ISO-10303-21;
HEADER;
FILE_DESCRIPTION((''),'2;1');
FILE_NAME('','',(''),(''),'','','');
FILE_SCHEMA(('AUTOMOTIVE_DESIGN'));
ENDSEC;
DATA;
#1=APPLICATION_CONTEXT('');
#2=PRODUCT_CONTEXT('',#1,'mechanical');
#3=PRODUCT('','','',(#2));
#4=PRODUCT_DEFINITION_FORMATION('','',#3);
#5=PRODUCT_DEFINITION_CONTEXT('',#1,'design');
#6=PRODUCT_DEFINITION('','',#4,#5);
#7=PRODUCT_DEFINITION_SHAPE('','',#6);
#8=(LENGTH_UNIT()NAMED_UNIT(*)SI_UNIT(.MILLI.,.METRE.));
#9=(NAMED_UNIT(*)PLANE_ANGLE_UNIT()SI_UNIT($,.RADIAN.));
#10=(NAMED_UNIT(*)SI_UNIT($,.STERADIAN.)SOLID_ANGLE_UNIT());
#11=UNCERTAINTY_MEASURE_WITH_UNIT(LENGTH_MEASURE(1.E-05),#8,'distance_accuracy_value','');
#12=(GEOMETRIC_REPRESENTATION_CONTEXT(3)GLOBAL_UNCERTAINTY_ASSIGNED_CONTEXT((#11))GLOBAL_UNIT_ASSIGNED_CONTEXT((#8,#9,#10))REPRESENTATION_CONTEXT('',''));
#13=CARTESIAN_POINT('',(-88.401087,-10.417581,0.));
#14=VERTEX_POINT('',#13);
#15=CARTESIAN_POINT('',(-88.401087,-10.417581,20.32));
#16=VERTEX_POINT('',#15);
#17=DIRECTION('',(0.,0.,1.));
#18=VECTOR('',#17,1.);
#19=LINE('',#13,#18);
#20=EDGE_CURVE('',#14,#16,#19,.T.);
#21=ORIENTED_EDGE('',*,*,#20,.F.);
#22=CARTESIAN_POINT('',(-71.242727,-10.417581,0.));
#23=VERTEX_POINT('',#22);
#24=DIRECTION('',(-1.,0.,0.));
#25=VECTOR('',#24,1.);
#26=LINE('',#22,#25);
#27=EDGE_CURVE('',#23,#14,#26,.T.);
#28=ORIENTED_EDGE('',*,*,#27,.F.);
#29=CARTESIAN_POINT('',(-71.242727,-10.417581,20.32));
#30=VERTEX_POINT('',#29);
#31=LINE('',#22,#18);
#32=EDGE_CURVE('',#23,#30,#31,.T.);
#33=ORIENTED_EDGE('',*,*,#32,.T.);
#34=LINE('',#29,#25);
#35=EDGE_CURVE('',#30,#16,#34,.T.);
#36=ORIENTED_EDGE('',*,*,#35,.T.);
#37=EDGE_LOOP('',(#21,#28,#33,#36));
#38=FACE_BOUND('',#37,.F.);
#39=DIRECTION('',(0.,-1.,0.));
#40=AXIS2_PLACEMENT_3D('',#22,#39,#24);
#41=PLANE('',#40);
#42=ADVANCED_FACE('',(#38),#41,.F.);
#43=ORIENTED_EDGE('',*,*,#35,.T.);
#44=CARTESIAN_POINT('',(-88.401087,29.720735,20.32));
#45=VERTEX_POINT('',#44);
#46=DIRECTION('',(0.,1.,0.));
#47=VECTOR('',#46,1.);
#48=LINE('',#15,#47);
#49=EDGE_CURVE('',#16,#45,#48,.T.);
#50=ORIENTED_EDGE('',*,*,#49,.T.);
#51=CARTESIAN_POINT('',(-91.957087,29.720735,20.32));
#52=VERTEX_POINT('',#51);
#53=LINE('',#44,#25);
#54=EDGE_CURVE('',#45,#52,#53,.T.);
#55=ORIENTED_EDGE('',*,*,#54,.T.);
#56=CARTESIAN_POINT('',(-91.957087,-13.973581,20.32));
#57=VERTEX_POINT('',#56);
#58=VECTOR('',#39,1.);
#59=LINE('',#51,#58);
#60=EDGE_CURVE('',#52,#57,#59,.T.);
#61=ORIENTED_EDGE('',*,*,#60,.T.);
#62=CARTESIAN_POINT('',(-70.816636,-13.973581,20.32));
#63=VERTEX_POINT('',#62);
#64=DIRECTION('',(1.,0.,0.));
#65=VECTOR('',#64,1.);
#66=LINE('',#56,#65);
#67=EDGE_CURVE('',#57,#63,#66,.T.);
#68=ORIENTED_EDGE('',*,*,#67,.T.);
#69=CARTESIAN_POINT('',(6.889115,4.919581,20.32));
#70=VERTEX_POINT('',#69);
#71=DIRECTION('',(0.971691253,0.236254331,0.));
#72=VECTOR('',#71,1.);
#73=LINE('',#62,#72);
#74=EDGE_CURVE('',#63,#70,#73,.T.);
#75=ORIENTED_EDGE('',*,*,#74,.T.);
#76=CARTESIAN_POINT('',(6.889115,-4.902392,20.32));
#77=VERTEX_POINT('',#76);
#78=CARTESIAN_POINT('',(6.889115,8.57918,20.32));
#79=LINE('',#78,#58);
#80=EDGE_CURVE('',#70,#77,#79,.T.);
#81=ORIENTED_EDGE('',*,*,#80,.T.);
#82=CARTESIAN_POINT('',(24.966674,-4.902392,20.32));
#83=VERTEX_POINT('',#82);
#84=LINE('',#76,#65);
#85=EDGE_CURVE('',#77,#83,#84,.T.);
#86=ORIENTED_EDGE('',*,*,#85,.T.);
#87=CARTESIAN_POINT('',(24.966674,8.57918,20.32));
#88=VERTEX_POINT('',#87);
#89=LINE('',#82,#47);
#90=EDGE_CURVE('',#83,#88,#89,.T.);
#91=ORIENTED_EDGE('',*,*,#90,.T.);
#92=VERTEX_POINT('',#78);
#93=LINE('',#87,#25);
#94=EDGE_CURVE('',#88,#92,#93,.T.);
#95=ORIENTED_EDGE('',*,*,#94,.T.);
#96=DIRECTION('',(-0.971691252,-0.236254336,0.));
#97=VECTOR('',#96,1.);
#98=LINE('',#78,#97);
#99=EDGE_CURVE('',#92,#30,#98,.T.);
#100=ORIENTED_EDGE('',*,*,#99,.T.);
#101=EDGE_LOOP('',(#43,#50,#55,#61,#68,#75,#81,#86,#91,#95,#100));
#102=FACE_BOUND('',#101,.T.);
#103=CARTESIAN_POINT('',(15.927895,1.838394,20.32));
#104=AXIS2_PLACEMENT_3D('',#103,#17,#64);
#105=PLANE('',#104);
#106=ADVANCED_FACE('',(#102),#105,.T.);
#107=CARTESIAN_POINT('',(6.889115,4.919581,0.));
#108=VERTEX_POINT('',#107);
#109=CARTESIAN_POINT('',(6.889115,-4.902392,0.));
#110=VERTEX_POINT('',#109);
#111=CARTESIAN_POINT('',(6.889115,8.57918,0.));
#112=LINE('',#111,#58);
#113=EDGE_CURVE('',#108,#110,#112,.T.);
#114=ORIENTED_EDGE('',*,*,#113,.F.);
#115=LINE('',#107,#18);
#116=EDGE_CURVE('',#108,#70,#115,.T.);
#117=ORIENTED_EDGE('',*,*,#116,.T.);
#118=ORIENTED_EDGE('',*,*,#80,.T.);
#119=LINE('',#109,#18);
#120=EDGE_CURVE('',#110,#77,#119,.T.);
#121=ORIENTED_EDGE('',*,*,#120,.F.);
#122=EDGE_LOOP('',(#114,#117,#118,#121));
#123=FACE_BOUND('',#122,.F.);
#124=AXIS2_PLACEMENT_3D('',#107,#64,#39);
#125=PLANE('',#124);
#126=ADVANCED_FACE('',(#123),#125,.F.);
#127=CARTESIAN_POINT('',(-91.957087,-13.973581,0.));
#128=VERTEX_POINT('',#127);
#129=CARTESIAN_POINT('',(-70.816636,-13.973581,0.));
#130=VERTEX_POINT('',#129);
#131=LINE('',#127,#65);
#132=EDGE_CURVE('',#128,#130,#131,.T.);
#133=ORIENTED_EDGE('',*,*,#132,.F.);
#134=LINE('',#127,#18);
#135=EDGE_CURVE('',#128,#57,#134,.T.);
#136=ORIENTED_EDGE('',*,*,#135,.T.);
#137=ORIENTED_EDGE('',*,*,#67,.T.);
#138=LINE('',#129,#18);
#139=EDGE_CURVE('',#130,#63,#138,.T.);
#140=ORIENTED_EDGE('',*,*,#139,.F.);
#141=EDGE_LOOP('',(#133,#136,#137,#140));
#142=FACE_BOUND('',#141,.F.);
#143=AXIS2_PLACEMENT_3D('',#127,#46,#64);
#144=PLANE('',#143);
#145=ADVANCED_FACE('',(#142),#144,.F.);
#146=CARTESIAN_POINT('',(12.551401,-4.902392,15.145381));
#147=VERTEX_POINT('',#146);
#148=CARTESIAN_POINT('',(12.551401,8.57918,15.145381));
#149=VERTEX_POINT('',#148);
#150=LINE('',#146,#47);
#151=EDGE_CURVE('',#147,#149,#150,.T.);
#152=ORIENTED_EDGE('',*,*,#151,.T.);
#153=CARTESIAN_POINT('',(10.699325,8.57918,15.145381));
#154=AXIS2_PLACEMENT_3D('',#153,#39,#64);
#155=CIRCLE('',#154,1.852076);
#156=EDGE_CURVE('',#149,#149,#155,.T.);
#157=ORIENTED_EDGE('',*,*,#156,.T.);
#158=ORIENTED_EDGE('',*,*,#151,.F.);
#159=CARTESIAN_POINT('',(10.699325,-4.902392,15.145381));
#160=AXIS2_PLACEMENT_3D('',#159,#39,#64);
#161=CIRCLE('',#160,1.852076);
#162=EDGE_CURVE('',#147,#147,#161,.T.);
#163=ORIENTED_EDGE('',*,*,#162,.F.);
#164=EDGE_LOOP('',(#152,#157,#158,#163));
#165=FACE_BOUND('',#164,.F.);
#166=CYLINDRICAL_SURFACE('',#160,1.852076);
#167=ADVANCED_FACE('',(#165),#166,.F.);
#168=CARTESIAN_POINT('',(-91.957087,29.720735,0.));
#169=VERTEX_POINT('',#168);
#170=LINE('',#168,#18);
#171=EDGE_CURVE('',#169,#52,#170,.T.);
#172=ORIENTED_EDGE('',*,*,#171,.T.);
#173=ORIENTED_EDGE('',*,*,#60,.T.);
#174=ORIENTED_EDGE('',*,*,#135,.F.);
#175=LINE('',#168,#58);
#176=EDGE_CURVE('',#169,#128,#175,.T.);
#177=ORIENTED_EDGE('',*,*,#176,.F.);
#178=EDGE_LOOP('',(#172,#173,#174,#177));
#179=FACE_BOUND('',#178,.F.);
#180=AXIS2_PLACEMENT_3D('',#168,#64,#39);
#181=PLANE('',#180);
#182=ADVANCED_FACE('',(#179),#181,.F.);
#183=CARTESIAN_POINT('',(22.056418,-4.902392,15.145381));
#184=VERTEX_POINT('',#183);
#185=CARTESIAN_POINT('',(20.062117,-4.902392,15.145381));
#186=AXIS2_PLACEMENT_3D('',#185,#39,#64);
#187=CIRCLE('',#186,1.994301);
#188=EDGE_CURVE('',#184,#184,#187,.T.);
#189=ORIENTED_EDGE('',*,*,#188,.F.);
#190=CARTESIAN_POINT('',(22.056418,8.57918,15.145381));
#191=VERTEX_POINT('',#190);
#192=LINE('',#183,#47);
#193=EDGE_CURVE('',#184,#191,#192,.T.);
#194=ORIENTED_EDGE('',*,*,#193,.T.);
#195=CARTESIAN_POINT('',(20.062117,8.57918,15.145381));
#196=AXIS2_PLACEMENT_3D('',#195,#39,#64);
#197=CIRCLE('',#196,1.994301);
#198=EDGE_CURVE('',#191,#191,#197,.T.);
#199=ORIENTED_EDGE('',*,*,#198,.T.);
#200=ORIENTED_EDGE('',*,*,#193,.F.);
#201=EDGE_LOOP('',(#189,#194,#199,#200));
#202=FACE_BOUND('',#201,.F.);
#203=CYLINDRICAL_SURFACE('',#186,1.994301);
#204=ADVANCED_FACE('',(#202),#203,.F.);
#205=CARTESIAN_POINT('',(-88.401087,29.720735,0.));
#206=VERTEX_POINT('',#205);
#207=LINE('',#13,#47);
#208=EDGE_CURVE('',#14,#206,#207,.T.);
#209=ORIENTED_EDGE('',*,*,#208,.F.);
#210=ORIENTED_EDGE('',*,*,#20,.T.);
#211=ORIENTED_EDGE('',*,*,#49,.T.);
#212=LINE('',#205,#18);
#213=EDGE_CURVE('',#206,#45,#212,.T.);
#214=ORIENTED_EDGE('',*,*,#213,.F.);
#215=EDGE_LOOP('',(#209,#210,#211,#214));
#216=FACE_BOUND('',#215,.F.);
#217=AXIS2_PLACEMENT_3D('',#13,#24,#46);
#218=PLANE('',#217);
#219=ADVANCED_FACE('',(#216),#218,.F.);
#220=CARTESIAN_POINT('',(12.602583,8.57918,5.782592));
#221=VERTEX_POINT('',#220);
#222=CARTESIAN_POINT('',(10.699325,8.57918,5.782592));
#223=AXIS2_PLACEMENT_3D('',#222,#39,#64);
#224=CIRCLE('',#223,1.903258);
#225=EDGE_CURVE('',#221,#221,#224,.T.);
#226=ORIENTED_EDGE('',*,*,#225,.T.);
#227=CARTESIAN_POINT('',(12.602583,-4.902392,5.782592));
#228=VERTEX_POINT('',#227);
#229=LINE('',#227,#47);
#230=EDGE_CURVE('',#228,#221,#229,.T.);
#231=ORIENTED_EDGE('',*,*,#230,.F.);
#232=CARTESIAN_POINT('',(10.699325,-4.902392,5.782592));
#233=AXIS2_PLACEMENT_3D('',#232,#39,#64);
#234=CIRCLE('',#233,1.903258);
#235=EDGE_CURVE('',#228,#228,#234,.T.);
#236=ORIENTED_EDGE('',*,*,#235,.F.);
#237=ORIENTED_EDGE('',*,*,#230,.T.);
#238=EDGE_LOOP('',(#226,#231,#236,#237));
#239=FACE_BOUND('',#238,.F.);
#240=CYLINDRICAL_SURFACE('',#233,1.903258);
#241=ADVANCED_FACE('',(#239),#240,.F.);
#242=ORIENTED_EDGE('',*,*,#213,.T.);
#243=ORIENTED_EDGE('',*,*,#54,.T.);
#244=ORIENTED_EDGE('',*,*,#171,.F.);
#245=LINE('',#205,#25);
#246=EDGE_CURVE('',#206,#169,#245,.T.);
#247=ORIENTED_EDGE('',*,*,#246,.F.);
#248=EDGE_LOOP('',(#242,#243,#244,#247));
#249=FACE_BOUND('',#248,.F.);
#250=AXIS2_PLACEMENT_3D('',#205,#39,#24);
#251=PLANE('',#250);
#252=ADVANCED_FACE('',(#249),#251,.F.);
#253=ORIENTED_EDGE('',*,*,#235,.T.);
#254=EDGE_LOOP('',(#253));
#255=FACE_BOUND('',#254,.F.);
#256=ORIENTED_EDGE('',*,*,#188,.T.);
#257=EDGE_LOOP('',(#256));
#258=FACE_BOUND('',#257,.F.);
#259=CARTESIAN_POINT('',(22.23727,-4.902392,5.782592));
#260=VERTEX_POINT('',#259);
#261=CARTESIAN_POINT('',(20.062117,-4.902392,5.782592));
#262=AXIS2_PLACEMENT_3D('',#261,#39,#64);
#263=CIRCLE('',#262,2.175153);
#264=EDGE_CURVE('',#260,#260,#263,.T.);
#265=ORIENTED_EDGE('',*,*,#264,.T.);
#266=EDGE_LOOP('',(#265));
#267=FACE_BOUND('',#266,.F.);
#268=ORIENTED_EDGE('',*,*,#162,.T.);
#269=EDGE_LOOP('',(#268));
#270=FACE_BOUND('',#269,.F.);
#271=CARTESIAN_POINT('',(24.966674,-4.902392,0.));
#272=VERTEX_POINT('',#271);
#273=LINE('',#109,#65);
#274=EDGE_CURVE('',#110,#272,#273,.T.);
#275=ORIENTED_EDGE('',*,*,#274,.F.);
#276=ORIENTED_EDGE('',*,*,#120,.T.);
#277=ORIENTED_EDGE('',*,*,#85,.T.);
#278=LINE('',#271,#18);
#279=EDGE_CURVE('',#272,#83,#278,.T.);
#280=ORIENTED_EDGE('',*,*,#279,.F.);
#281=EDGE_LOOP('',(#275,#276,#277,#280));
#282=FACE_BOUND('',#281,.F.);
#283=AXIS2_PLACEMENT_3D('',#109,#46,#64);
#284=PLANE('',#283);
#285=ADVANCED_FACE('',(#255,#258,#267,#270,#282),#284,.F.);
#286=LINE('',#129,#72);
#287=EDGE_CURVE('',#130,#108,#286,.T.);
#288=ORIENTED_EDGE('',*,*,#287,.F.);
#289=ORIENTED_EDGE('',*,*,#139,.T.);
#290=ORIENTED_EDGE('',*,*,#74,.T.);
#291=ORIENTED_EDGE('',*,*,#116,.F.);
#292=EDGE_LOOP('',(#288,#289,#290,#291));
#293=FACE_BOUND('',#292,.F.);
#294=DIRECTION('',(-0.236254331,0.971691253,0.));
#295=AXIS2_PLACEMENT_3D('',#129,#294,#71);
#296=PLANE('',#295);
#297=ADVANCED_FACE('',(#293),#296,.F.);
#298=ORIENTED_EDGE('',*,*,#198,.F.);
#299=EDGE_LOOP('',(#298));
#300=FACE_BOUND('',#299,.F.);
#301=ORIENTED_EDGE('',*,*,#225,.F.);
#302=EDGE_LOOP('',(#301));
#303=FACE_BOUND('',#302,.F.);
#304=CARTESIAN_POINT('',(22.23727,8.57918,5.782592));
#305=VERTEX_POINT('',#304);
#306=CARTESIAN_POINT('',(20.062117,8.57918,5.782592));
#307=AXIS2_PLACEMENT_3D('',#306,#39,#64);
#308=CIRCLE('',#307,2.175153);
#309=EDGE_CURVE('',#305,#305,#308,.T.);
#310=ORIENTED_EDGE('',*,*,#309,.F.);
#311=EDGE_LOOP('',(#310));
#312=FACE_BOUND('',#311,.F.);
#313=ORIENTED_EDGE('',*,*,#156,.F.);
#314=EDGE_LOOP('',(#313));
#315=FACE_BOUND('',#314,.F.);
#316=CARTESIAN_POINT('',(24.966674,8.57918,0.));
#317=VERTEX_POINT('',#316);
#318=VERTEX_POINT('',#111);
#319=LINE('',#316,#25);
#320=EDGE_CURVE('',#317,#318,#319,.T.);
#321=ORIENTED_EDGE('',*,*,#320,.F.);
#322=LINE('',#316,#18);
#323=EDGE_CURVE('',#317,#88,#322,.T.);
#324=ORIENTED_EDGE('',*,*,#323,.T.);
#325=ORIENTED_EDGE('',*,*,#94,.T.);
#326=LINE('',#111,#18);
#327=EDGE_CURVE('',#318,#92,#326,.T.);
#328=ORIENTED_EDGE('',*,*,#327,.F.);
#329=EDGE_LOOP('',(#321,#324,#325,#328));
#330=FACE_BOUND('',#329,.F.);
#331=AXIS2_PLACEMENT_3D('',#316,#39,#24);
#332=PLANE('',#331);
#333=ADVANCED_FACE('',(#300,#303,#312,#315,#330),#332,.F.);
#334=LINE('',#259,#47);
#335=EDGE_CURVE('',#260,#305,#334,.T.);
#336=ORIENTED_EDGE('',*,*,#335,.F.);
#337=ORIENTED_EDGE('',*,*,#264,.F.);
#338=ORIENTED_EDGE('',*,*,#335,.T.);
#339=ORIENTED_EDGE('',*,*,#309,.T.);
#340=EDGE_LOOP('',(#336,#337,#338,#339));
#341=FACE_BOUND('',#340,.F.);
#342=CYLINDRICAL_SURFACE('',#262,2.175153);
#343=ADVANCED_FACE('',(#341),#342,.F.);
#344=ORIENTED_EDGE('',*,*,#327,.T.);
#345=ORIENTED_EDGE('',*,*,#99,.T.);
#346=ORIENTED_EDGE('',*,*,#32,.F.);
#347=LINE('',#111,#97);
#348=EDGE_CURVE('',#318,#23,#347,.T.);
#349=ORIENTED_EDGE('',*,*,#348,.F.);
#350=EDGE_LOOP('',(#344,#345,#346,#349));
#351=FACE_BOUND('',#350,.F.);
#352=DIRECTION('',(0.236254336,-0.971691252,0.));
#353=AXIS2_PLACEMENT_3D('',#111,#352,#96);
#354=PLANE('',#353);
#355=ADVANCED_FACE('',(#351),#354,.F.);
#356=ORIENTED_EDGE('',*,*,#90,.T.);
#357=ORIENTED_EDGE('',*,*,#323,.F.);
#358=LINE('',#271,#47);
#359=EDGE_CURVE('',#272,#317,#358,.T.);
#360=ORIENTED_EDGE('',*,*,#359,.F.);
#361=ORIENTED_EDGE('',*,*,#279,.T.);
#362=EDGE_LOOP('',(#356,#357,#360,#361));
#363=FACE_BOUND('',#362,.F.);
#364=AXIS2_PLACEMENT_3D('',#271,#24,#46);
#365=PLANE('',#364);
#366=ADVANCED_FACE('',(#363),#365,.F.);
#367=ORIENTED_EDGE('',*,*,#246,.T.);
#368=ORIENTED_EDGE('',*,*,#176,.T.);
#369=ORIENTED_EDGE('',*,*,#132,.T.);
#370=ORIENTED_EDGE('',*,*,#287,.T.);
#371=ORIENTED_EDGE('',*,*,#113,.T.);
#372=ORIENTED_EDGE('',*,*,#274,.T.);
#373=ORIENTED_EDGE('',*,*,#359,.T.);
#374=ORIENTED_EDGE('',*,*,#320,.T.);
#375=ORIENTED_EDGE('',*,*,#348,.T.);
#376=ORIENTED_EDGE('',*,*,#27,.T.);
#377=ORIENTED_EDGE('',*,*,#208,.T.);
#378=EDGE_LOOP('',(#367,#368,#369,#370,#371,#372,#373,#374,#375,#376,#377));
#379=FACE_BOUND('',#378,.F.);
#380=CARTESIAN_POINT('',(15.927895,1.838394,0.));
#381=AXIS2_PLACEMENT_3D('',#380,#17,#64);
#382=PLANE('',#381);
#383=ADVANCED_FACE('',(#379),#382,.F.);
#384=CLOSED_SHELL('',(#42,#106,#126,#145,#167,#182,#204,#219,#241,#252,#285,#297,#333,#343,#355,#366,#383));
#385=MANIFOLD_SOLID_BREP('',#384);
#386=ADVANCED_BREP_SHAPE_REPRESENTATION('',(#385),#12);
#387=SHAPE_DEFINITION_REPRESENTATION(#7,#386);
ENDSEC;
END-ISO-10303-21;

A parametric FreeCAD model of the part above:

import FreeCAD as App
import Part
import Sketcher
Q = App.Units.Quantity


def add_polygon(sketch, points):
    """Adds a closed chain of lines whose ends are joined by coincident constraints."""
    first, n = sketch.GeometryCount, len(points)
    for a, b in zip(points, points[1:] + points[:1]):
        sketch.addGeometry(Part.LineSegment(App.Vector(*a, 0), App.Vector(*b, 0)), False)
    for i in range(n):
        sketch.addConstraint(Sketcher.Constraint("Coincident", first + i, 2, first + (i + 1) % n, 1))

doc = App.newDocument("Part")
body = doc.addObject("PartDesign::Body", "Body")

# Sketch on XY plane
sketch1 = doc.addObject("Sketcher::SketchObject", "Sketch")
body.addObject(sketch1)
sketch1.AttachmentSupport = (doc.XY_Plane, [""])
sketch1.MapMode = "FlatFace"
add_polygon(sketch1, [(24.966674, 8.57918), (6.889115, 8.57918), (-71.242727, -10.417581), (-88.401087, -10.417581), (-88.401087, 29.720735), (-91.957087, 29.720735), (-91.957087, -13.973581), (-70.816636, -13.973581), (6.889115, 4.919581), (6.889115, -4.902392), (24.966674, -4.902392)])  # lines 0-10
sketch1.addConstraint(Sketcher.Constraint("Horizontal", 0))
sketch1.addConstraint(Sketcher.Constraint("Horizontal", 2))
sketch1.addConstraint(Sketcher.Constraint("Vertical", 3))
sketch1.addConstraint(Sketcher.Constraint("Horizontal", 4))
sketch1.addConstraint(Sketcher.Constraint("Vertical", 5))
sketch1.addConstraint(Sketcher.Constraint("Horizontal", 6))
sketch1.addConstraint(Sketcher.Constraint("Vertical", 8))
sketch1.addConstraint(Sketcher.Constraint("Horizontal", 9))
sketch1.addConstraint(Sketcher.Constraint("Vertical", 10))
sketch1.addConstraint(Sketcher.Constraint("DistanceX", 4, 2, 4, 1, Q("0.14 in")))
sketch1.addConstraint(Sketcher.Constraint("DistanceY", 5, 2, 2, 2, Q("0.14 in")))
sketch1.addConstraint(Sketcher.Constraint("DistanceX", 0, 2, 0, 1, 18.077559))
sketch1.addConstraint(Sketcher.Constraint("DistanceX", 2, 2, 2, 1, 17.15836))
sketch1.addConstraint(Sketcher.Constraint("DistanceX", 6, 1, 6, 2, 21.140451))
sketch1.addConstraint(Sketcher.Constraint("DistanceX", 9, 1, 9, 2, 18.077559))
sketch1.addConstraint(Sketcher.Constraint("DistanceY", 7, 2, 0, 2, 3.659599))
sketch1.addConstraint(Sketcher.Constraint("DistanceX", 1, 2, 9, 2, 96.209401))
sketch1.addConstraint(Sketcher.Constraint("Distance", 7, 79.96959))
sketch1.addConstraint(Sketcher.Constraint("DistanceY", 3, 1, 3, 2, 40.138316))
sketch1.addConstraint(Sketcher.Constraint("DistanceY", 8, 2, 8, 1, 9.821973))
sketch1.addConstraint(Sketcher.Constraint("DistanceY", -1, 1, 0, 2, 8.57918))
sketch1.addConstraint(Sketcher.Constraint("DistanceX", -1, 1, 0, 2, 6.889115))
pad1 = doc.addObject("PartDesign::Pad", "Pad")
body.addObject(pad1)
pad1.Profile = sketch1
pad1.Length = Q("0.8 in")

# Sketch on XZ plane
sketch2 = doc.addObject("Sketcher::SketchObject", "Sketch001")
body.addObject(sketch2)
sketch2.AttachmentSupport = (doc.XZ_Plane, [""])
sketch2.MapMode = "FlatFace"
sketch2.AttachmentOffset = App.Placement(App.Vector(0, 0, 4.902392), App.Rotation())
sketch2.addGeometry(Part.Circle(App.Vector(10.7, 15.1, 0), App.Vector(0, 0, 1), 1.9), False)
sketch2.addGeometry(Part.Circle(App.Vector(20.1, 15.1, 0), App.Vector(0, 0, 1), 2), False)
sketch2.addGeometry(Part.Circle(App.Vector(20.1, 5.8, 0), App.Vector(0, 0, 1), 2.2), False)
sketch2.addGeometry(Part.Circle(App.Vector(10.7, 5.8, 0), App.Vector(0, 0, 1), 1.9), False)
sketch2.addConstraint(Sketcher.Constraint("Horizontal", 0, 3, 1, 3))
sketch2.addConstraint(Sketcher.Constraint("Horizontal", 2, 3, 3, 3))
sketch2.addConstraint(Sketcher.Constraint("Vertical", 1, 3, 2, 3))
sketch2.addConstraint(Sketcher.Constraint("Vertical", 0, 3, 3, 3))
sketch2.addConstraint(Sketcher.Constraint("Diameter", 0, 3.704152))
sketch2.addConstraint(Sketcher.Constraint("Diameter", 1, 3.988602))
sketch2.addConstraint(Sketcher.Constraint("Diameter", 2, 4.350306))
sketch2.addConstraint(Sketcher.Constraint("Diameter", 3, 3.806516))
sketch2.addConstraint(Sketcher.Constraint("DistanceY", -1, 1, 0, 3, 15.145381))
sketch2.addConstraint(Sketcher.Constraint("DistanceY", 2, 3, 1, 3, 9.362789))
sketch2.addConstraint(Sketcher.Constraint("DistanceX", -1, 1, 0, 3, 10.699325))
sketch2.addConstraint(Sketcher.Constraint("DistanceX", -1, 1, 1, 3, 20.062117))
pocket1 = doc.addObject("PartDesign::Pocket", "Pocket")
body.addObject(pocket1)
pocket1.Profile = sketch2
pocket1.Type = "ThroughAll"

doc.recompute()
